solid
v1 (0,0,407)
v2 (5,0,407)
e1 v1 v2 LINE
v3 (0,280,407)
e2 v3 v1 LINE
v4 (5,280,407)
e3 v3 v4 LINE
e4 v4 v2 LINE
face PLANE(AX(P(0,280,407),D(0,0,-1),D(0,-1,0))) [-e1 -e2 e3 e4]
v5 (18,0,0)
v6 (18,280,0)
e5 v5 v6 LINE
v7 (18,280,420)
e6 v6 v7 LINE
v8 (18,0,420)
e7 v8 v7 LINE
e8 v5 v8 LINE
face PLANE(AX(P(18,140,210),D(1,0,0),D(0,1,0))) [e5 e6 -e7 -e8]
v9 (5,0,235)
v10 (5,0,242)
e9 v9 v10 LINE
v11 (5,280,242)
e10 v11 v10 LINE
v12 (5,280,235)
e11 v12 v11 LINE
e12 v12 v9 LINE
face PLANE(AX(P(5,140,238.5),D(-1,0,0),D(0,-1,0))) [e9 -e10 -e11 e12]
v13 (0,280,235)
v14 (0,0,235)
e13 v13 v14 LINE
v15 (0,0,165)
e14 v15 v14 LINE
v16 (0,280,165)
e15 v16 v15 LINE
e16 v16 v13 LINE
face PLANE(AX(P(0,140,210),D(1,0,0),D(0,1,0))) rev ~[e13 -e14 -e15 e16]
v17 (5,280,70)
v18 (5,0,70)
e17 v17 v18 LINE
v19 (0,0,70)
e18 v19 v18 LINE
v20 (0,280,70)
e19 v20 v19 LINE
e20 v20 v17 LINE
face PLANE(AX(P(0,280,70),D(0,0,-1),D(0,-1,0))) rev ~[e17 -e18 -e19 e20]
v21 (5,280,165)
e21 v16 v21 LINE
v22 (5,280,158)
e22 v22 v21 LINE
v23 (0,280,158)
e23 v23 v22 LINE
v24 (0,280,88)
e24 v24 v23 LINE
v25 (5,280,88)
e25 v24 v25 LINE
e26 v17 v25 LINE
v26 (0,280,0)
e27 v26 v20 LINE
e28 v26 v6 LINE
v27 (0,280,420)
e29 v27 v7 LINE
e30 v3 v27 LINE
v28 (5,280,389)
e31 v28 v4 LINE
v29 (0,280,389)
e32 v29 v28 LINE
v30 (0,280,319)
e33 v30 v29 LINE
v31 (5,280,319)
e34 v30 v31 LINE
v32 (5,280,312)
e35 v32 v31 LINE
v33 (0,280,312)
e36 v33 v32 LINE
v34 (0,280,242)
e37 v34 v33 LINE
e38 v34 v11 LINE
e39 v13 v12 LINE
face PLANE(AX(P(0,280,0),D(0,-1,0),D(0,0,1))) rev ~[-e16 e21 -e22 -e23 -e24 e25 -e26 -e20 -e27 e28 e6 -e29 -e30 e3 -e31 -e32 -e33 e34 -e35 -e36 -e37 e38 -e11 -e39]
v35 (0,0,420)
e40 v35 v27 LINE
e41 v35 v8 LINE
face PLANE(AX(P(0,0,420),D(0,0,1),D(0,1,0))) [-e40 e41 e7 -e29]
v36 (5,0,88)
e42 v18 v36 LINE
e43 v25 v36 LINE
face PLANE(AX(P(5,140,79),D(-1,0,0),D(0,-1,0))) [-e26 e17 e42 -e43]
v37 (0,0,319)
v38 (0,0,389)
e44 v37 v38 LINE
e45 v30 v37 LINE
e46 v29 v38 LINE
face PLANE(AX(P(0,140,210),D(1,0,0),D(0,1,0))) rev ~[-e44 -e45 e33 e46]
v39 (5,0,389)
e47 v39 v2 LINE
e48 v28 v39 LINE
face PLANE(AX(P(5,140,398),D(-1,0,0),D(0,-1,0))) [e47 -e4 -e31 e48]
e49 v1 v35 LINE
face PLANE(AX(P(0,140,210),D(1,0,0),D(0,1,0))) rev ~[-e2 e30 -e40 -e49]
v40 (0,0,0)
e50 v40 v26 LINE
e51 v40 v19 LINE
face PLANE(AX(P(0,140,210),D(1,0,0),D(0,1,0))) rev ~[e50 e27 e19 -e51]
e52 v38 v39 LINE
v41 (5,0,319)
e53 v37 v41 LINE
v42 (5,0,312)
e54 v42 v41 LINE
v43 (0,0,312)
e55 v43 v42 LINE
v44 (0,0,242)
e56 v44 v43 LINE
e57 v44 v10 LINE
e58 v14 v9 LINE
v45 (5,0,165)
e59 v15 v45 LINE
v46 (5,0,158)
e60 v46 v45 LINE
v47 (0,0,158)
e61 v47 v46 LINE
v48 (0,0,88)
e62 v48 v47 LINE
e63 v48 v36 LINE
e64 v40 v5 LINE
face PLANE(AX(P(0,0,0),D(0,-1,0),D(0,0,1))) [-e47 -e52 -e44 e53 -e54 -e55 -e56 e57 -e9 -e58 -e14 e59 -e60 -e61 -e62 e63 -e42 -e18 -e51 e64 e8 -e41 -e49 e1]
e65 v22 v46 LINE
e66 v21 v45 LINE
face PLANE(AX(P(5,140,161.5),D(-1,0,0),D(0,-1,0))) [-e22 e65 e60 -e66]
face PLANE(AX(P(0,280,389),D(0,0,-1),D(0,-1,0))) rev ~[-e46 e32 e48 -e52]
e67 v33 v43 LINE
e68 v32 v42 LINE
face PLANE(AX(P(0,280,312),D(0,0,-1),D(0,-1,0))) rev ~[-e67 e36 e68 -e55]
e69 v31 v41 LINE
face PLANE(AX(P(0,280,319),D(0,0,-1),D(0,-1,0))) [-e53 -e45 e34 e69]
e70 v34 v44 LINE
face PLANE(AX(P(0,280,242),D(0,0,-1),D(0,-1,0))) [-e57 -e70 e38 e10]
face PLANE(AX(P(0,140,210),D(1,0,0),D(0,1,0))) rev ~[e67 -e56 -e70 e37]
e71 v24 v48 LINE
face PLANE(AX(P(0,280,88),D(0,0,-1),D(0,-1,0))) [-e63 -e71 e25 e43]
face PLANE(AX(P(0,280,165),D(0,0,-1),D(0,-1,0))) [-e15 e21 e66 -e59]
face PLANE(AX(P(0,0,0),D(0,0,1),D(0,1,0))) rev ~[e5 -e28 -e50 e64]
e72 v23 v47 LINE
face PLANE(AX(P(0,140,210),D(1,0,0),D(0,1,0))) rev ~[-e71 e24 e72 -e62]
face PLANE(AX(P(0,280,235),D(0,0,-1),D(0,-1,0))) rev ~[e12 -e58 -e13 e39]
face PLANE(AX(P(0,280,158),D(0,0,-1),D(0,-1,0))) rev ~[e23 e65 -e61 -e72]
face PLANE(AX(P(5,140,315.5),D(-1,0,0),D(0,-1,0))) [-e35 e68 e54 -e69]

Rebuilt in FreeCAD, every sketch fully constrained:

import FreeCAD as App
import Part
import Sketcher

V = App.Vector

doc = App.newDocument("Part")
body = doc.addObject("PartDesign::Body", "Body")

# Sketch on YZ plane
sketch1 = body.newObject("Sketcher::SketchObject", "Sketch")
sketch1.AttachmentSupport = (doc.getObject("YZ_Plane"), [""])
sketch1.MapMode = "FlatFace"
sketch1.addGeometry(Part.LineSegment(V(0, 420, 0), V(0, 0, 0)), False)
sketch1.addGeometry(Part.LineSegment(V(0, 0, 0), V(280, 0, 0)), False)
sketch1.addGeometry(Part.LineSegment(V(280, 0, 0), V(280, 420, 0)), False)
sketch1.addGeometry(Part.LineSegment(V(280, 420, 0), V(0, 420, 0)), False)
sketch1.addConstraint(Sketcher.Constraint("Coincident", 0, 2, 1, 1))
sketch1.addConstraint(Sketcher.Constraint("Coincident", 1, 2, 2, 1))
sketch1.addConstraint(Sketcher.Constraint("Coincident", 2, 2, 3, 1))
sketch1.addConstraint(Sketcher.Constraint("Coincident", 3, 2, 0, 1))
sketch1.addConstraint(Sketcher.Constraint("Vertical", 0))
sketch1.addConstraint(Sketcher.Constraint("Horizontal", 1))
sketch1.addConstraint(Sketcher.Constraint("Vertical", 2))
sketch1.addConstraint(Sketcher.Constraint("Horizontal", 3))
sketch1.addConstraint(Sketcher.Constraint("Coincident", 0, 2, -1, 1))
sketch1.addConstraint(Sketcher.Constraint("DistanceX", 1, 1, 1, 2, 280.0))
sketch1.addConstraint(Sketcher.Constraint("DistanceY", 0, 2, 0, 1, 420.0))
pad1 = body.newObject("PartDesign::Pad", "Pad")
pad1.Profile = sketch1
pad1.Length = 18

# Sketch on YZ plane
sketch2 = body.newObject("Sketcher::SketchObject", "Sketch001")
sketch2.AttachmentSupport = (doc.getObject("YZ_Plane"), [""])
sketch2.MapMode = "FlatFace"
sketch2.addGeometry(Part.LineSegment(V(280, 88, 0), V(280, 70, 0)), False)
sketch2.addGeometry(Part.LineSegment(V(280, 70, 0), V(0, 70, 0)), False)
sketch2.addGeometry(Part.LineSegment(V(0, 70, 0), V(0, 88, 0)), False)
sketch2.addGeometry(Part.LineSegment(V(0, 88, 0), V(280, 88, 0)), False)
sketch2.addGeometry(Part.LineSegment(V(280, 165, 0), V(280, 158, 0)), False)
sketch2.addGeometry(Part.LineSegment(V(280, 158, 0), V(0, 158, 0)), False)
sketch2.addGeometry(Part.LineSegment(V(0, 158, 0), V(0, 165, 0)), False)
sketch2.addGeometry(Part.LineSegment(V(0, 165, 0), V(280, 165, 0)), False)
sketch2.addGeometry(Part.LineSegment(V(280, 242, 0), V(280, 235, 0)), False)
sketch2.addGeometry(Part.LineSegment(V(280, 235, 0), V(0, 235, 0)), False)
sketch2.addGeometry(Part.LineSegment(V(0, 235, 0), V(0, 242, 0)), False)
sketch2.addGeometry(Part.LineSegment(V(0, 242, 0), V(280, 242, 0)), False)
sketch2.addGeometry(Part.LineSegment(V(280, 319, 0), V(280, 312, 0)), False)
sketch2.addGeometry(Part.LineSegment(V(280, 312, 0), V(0, 312, 0)), False)
sketch2.addGeometry(Part.LineSegment(V(0, 312, 0), V(0, 319, 0)), False)
sketch2.addGeometry(Part.LineSegment(V(0, 319, 0), V(280, 319, 0)), False)
sketch2.addGeometry(Part.LineSegment(V(280, 407, 0), V(280, 389, 0)), False)
sketch2.addGeometry(Part.LineSegment(V(280, 389, 0), V(0, 389, 0)), False)
sketch2.addGeometry(Part.LineSegment(V(0, 389, 0), V(0, 407, 0)), False)
sketch2.addGeometry(Part.LineSegment(V(0, 407, 0), V(280, 407, 0)), False)
sketch2.addConstraint(Sketcher.Constraint("Coincident", 0, 2, 1, 1))
sketch2.addConstraint(Sketcher.Constraint("Coincident", 1, 2, 2, 1))
sketch2.addConstraint(Sketcher.Constraint("Coincident", 2, 2, 3, 1))
sketch2.addConstraint(Sketcher.Constraint("Coincident", 3, 2, 0, 1))
sketch2.addConstraint(Sketcher.Constraint("Coincident", 4, 2, 5, 1))
sketch2.addConstraint(Sketcher.Constraint("Coincident", 5, 2, 6, 1))
sketch2.addConstraint(Sketcher.Constraint("Coincident", 6, 2, 7, 1))
sketch2.addConstraint(Sketcher.Constraint("Coincident", 7, 2, 4, 1))
sketch2.addConstraint(Sketcher.Constraint("Coincident", 8, 2, 9, 1))
sketch2.addConstraint(Sketcher.Constraint("Coincident", 9, 2, 10, 1))
sketch2.addConstraint(Sketcher.Constraint("Coincident", 10, 2, 11, 1))
sketch2.addConstraint(Sketcher.Constraint("Coincident", 11, 2, 8, 1))
sketch2.addConstraint(Sketcher.Constraint("Coincident", 12, 2, 13, 1))
sketch2.addConstraint(Sketcher.Constraint("Coincident", 13, 2, 14, 1))
sketch2.addConstraint(Sketcher.Constraint("Coincident", 14, 2, 15, 1))
sketch2.addConstraint(Sketcher.Constraint("Coincident", 15, 2, 12, 1))
sketch2.addConstraint(Sketcher.Constraint("Coincident", 16, 2, 17, 1))
sketch2.addConstraint(Sketcher.Constraint("Coincident", 17, 2, 18, 1))
sketch2.addConstraint(Sketcher.Constraint("Coincident", 18, 2, 19, 1))
sketch2.addConstraint(Sketcher.Constraint("Coincident", 19, 2, 16, 1))
sketch2.addConstraint(Sketcher.Constraint("Vertical", 0))
sketch2.addConstraint(Sketcher.Constraint("Horizontal", 1))
sketch2.addConstraint(Sketcher.Constraint("Vertical", 2))
sketch2.addConstraint(Sketcher.Constraint("Horizontal", 3))
sketch2.addConstraint(Sketcher.Constraint("Vertical", 4))
sketch2.addConstraint(Sketcher.Constraint("Horizontal", 5))
sketch2.addConstraint(Sketcher.Constraint("Vertical", 6))
sketch2.addConstraint(Sketcher.Constraint("Horizontal", 7))
sketch2.addConstraint(Sketcher.Constraint("Vertical", 8))
sketch2.addConstraint(Sketcher.Constraint("Horizontal", 9))
sketch2.addConstraint(Sketcher.Constraint("Vertical", 10))
sketch2.addConstraint(Sketcher.Constraint("Horizontal", 11))
sketch2.addConstraint(Sketcher.Constraint("Vertical", 12))
sketch2.addConstraint(Sketcher.Constraint("Horizontal", 13))
sketch2.addConstraint(Sketcher.Constraint("Vertical", 14))
sketch2.addConstraint(Sketcher.Constraint("Horizontal", 15))
sketch2.addConstraint(Sketcher.Constraint("Vertical", 16))
sketch2.addConstraint(Sketcher.Constraint("Horizontal", 17))
sketch2.addConstraint(Sketcher.Constraint("Vertical", 18))
sketch2.addConstraint(Sketcher.Constraint("Horizontal", 19))
sketch2.addConstraint(Sketcher.Constraint("PointOnObject", 1, 2, -2))
sketch2.addConstraint(Sketcher.Constraint("PointOnObject", 5, 2, -2))
sketch2.addConstraint(Sketcher.Constraint("PointOnObject", 9, 2, -2))
sketch2.addConstraint(Sketcher.Constraint("PointOnObject", 13, 2, -2))
sketch2.addConstraint(Sketcher.Constraint("PointOnObject", 17, 2, -2))
sketch2.addConstraint(Sketcher.Constraint("Vertical", 3, 2, 4, 2))
sketch2.addConstraint(Sketcher.Constraint("Vertical", 7, 2, 8, 2))
sketch2.addConstraint(Sketcher.Constraint("Vertical", 11, 2, 12, 2))
sketch2.addConstraint(Sketcher.Constraint("Vertical", 15, 2, 16, 2))
sketch2.addConstraint(Sketcher.Constraint("Equal", 6, 8))
sketch2.addConstraint(Sketcher.Constraint("Equal", 10, 12))
sketch2.addConstraint(Sketcher.Constraint("Equal", 2, 16))
sketch2.addConstraint(Sketcher.Constraint("DistanceX", 1, 2, 1, 1, 280.0))
sketch2.addConstraint(Sketcher.Constraint("DistanceY", 0, 2, 0, 1, 18.0))
sketch2.addConstraint(Sketcher.Constraint("DistanceY", 4, 2, 4, 1, 7.0))
sketch2.addConstraint(Sketcher.Constraint("DistanceY", -1, 1, 0, 2, 70.0))
sketch2.addConstraint(Sketcher.Constraint("DistanceY", -1, 1, 4, 2, 158.0))
sketch2.addConstraint(Sketcher.Constraint("DistanceY", -1, 1, 8, 2, 235.0))
sketch2.addConstraint(Sketcher.Constraint("DistanceY", -1, 1, 12, 2, 312.0))
sketch2.addConstraint(Sketcher.Constraint("DistanceY", -1, 1, 16, 2, 389.0))
pocket1 = body.newObject("PartDesign::Pocket", "Pocket")
pocket1.Profile = sketch2
pocket1.Length = 5
pocket1.Reversed = True

doc.recompute()
